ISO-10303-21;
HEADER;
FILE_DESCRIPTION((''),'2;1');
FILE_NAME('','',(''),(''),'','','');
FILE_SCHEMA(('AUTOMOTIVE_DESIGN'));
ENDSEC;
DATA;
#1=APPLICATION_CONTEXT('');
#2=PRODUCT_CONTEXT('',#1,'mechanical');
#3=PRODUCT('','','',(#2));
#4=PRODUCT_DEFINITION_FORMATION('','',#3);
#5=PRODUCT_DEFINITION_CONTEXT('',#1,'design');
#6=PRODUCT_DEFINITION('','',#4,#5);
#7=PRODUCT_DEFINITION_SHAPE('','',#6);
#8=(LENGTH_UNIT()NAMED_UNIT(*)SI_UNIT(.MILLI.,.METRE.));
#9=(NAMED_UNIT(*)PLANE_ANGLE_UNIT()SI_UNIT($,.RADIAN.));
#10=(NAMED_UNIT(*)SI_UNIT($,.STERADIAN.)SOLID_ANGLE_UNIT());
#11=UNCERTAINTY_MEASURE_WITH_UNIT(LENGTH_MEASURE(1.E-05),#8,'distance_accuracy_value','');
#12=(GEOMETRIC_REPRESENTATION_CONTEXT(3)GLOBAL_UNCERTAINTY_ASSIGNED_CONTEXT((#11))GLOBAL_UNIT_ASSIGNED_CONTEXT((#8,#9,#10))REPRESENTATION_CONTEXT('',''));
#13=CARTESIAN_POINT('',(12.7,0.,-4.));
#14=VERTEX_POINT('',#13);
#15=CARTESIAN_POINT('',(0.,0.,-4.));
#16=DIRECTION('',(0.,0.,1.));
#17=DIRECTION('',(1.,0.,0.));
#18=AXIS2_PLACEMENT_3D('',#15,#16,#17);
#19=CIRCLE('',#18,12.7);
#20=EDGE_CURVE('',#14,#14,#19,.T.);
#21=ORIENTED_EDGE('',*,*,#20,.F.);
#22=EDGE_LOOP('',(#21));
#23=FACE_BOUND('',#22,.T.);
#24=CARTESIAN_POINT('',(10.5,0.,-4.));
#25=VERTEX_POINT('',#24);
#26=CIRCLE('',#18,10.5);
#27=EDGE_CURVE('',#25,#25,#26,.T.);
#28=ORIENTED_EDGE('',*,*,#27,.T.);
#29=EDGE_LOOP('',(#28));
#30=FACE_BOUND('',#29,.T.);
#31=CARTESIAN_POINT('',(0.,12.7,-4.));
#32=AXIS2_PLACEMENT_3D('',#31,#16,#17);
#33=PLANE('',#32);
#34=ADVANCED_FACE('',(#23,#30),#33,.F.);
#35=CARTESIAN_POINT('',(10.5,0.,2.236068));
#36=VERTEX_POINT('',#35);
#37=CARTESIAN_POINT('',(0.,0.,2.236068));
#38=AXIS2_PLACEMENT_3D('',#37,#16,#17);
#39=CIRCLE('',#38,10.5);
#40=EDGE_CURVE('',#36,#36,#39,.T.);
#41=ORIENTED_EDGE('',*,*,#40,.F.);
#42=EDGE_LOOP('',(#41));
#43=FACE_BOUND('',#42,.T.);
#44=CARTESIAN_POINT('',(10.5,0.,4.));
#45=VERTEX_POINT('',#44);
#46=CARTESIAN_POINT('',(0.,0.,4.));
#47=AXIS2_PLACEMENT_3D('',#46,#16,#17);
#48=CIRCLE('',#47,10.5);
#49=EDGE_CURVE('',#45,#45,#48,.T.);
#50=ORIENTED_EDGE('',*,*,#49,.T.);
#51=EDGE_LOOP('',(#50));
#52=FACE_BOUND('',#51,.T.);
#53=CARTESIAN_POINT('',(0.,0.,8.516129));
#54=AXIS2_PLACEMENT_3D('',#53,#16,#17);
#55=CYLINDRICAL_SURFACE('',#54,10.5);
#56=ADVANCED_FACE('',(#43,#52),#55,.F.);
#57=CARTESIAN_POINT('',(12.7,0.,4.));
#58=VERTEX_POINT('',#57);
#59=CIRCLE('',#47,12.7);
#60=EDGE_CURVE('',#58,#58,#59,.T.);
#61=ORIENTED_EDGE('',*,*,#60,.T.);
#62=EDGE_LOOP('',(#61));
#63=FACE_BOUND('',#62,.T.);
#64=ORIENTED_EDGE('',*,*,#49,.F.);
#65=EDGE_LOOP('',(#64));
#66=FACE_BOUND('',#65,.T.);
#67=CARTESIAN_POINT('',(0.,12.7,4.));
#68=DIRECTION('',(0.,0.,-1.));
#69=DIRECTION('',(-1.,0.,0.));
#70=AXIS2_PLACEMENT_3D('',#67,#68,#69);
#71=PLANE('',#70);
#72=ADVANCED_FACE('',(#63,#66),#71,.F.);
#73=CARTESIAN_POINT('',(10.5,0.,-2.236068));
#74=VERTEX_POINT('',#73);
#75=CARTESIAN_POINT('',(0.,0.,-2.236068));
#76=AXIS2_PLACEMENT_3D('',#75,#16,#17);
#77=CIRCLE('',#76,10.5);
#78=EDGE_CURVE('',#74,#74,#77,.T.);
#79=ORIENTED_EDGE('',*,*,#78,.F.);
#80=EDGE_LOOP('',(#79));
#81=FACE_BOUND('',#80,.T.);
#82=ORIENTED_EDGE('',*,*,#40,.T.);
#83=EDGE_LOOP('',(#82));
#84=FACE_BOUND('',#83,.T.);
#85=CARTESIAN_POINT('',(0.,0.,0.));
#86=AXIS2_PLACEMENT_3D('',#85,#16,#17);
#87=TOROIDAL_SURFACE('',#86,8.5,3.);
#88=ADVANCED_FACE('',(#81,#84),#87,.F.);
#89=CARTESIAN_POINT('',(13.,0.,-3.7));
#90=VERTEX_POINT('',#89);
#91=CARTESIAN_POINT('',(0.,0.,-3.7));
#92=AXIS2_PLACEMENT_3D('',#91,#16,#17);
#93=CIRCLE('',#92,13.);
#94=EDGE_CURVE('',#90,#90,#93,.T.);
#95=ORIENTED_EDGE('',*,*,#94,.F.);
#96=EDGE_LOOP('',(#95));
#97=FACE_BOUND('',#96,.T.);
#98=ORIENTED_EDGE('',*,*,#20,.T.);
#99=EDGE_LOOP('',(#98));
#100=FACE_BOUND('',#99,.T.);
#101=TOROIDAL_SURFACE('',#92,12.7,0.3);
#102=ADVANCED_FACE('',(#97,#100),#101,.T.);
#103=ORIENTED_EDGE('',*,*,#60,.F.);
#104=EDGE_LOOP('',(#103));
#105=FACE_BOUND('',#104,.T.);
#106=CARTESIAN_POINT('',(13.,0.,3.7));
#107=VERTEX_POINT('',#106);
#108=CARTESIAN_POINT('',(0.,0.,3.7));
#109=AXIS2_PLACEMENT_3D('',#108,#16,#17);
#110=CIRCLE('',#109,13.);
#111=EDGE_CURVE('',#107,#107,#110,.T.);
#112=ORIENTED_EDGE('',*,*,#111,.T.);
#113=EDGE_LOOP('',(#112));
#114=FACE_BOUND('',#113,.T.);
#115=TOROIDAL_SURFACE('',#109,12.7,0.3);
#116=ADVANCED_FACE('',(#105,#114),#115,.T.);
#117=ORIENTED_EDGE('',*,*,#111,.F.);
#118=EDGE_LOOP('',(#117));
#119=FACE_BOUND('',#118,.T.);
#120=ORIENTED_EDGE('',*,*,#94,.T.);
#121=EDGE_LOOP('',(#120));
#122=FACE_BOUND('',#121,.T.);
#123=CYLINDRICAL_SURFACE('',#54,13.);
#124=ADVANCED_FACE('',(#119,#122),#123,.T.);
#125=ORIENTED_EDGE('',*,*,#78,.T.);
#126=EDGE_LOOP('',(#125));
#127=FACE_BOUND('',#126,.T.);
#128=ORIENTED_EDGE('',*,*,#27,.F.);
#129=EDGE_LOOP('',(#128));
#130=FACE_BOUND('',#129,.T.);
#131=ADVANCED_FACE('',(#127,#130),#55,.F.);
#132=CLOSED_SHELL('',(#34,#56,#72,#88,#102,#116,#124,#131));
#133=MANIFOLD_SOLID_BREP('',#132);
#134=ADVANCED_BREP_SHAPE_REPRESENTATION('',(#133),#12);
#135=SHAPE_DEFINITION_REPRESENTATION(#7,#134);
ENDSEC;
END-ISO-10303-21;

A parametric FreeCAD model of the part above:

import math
import FreeCAD as App
import Part
import Sketcher

doc = App.newDocument("Part")
body = doc.addObject("PartDesign::Body", "Body")

# Sketch on YZ plane
sketch1 = doc.addObject("Sketcher::SketchObject", "Sketch")
body.addObject(sketch1)
sketch1.AttachmentSupport = (doc.YZ_Plane, [""])
sketch1.MapMode = "FlatFace"
sketch1.addGeometry(Part.LineSegment(App.Vector(13, -3.7, 0), App.Vector(13, 3.7, 0)), False)
sketch1.addGeometry(Part.ArcOfCircle(Part.Circle(App.Vector(12.7, 3.7, 0), App.Vector(0, 0, 1), 0.3), math.radians(0), math.radians(90)), False)
sketch1.addGeometry(Part.LineSegment(App.Vector(12.7, 4, 0), App.Vector(10.5, 4, 0)), False)
sketch1.addGeometry(Part.LineSegment(App.Vector(10.5, 4, 0), App.Vector(10.5, 2.236068, 0)), False)
sketch1.addGeometry(Part.ArcOfCircle(Part.Circle(App.Vector(8.5, 0, 0), App.Vector(0, 0, 1), 3), math.radians(-48.189685), math.radians(48.189685)), False)
sketch1.addGeometry(Part.LineSegment(App.Vector(10.5, -2.236068, 0), App.Vector(10.5, -4, 0)), False)
sketch1.addGeometry(Part.LineSegment(App.Vector(10.5, -4, 0), App.Vector(12.7, -4, 0)), False)
sketch1.addGeometry(Part.ArcOfCircle(Part.Circle(App.Vector(12.7, -3.7, 0), App.Vector(0, 0, 1), 0.3), math.radians(-90), math.radians(0)), False)
sketch1.addConstraint(Sketcher.Constraint("Tangent", 0, 2, 1, 1))
sketch1.addConstraint(Sketcher.Constraint("Tangent", 1, 2, 2, 1))
sketch1.addConstraint(Sketcher.Constraint("Coincident", 2, 2, 3, 1))
sketch1.addConstraint(Sketcher.Constraint("Coincident", 3, 2, 4, 2))
sketch1.addConstraint(Sketcher.Constraint("Coincident", 4, 1, 5, 1))
sketch1.addConstraint(Sketcher.Constraint("Coincident", 5, 2, 6, 1))
sketch1.addConstraint(Sketcher.Constraint("Tangent", 6, 2, 7, 1))
sketch1.addConstraint(Sketcher.Constraint("Tangent", 7, 2, 0, 1))
sketch1.addConstraint(Sketcher.Constraint("Vertical", 0))
sketch1.addConstraint(Sketcher.Constraint("Horizontal", 2))
sketch1.addConstraint(Sketcher.Constraint("Vertical", 3))
sketch1.addConstraint(Sketcher.Constraint("Vertical", 5))
sketch1.addConstraint(Sketcher.Constraint("Horizontal", 6))
sketch1.addConstraint(Sketcher.Constraint("Equal", 1, 7))
sketch1.addConstraint(Sketcher.Constraint("Symmetric", 3, 2, 4, 1, -1))
sketch1.addConstraint(Sketcher.Constraint("Equal", 3, 5))
sketch1.addConstraint(Sketcher.Constraint("Radius", 4, 3.0))
sketch1.addConstraint(Sketcher.Constraint("Radius", 1, 0.3))
sketch1.addConstraint(Sketcher.Constraint("DistanceX", 2, 2, 2, 1, 2.2))
sketch1.addConstraint(Sketcher.Constraint("DistanceY", 0, 1, 0, 2, 7.4))
sketch1.addConstraint(Sketcher.Constraint("DistanceX", -1, 1, 0, 2, 13.0))
sketch1.addConstraint(Sketcher.Constraint("DistanceX", 4, 3, 2, 2, 2.0))
revolution = doc.addObject("PartDesign::Revolution", "Revolution")
body.addObject(revolution)
revolution.Profile = sketch1
revolution.ReferenceAxis = (sketch1, ["V_Axis"])
revolution.Angle = 360

doc.recompute()
